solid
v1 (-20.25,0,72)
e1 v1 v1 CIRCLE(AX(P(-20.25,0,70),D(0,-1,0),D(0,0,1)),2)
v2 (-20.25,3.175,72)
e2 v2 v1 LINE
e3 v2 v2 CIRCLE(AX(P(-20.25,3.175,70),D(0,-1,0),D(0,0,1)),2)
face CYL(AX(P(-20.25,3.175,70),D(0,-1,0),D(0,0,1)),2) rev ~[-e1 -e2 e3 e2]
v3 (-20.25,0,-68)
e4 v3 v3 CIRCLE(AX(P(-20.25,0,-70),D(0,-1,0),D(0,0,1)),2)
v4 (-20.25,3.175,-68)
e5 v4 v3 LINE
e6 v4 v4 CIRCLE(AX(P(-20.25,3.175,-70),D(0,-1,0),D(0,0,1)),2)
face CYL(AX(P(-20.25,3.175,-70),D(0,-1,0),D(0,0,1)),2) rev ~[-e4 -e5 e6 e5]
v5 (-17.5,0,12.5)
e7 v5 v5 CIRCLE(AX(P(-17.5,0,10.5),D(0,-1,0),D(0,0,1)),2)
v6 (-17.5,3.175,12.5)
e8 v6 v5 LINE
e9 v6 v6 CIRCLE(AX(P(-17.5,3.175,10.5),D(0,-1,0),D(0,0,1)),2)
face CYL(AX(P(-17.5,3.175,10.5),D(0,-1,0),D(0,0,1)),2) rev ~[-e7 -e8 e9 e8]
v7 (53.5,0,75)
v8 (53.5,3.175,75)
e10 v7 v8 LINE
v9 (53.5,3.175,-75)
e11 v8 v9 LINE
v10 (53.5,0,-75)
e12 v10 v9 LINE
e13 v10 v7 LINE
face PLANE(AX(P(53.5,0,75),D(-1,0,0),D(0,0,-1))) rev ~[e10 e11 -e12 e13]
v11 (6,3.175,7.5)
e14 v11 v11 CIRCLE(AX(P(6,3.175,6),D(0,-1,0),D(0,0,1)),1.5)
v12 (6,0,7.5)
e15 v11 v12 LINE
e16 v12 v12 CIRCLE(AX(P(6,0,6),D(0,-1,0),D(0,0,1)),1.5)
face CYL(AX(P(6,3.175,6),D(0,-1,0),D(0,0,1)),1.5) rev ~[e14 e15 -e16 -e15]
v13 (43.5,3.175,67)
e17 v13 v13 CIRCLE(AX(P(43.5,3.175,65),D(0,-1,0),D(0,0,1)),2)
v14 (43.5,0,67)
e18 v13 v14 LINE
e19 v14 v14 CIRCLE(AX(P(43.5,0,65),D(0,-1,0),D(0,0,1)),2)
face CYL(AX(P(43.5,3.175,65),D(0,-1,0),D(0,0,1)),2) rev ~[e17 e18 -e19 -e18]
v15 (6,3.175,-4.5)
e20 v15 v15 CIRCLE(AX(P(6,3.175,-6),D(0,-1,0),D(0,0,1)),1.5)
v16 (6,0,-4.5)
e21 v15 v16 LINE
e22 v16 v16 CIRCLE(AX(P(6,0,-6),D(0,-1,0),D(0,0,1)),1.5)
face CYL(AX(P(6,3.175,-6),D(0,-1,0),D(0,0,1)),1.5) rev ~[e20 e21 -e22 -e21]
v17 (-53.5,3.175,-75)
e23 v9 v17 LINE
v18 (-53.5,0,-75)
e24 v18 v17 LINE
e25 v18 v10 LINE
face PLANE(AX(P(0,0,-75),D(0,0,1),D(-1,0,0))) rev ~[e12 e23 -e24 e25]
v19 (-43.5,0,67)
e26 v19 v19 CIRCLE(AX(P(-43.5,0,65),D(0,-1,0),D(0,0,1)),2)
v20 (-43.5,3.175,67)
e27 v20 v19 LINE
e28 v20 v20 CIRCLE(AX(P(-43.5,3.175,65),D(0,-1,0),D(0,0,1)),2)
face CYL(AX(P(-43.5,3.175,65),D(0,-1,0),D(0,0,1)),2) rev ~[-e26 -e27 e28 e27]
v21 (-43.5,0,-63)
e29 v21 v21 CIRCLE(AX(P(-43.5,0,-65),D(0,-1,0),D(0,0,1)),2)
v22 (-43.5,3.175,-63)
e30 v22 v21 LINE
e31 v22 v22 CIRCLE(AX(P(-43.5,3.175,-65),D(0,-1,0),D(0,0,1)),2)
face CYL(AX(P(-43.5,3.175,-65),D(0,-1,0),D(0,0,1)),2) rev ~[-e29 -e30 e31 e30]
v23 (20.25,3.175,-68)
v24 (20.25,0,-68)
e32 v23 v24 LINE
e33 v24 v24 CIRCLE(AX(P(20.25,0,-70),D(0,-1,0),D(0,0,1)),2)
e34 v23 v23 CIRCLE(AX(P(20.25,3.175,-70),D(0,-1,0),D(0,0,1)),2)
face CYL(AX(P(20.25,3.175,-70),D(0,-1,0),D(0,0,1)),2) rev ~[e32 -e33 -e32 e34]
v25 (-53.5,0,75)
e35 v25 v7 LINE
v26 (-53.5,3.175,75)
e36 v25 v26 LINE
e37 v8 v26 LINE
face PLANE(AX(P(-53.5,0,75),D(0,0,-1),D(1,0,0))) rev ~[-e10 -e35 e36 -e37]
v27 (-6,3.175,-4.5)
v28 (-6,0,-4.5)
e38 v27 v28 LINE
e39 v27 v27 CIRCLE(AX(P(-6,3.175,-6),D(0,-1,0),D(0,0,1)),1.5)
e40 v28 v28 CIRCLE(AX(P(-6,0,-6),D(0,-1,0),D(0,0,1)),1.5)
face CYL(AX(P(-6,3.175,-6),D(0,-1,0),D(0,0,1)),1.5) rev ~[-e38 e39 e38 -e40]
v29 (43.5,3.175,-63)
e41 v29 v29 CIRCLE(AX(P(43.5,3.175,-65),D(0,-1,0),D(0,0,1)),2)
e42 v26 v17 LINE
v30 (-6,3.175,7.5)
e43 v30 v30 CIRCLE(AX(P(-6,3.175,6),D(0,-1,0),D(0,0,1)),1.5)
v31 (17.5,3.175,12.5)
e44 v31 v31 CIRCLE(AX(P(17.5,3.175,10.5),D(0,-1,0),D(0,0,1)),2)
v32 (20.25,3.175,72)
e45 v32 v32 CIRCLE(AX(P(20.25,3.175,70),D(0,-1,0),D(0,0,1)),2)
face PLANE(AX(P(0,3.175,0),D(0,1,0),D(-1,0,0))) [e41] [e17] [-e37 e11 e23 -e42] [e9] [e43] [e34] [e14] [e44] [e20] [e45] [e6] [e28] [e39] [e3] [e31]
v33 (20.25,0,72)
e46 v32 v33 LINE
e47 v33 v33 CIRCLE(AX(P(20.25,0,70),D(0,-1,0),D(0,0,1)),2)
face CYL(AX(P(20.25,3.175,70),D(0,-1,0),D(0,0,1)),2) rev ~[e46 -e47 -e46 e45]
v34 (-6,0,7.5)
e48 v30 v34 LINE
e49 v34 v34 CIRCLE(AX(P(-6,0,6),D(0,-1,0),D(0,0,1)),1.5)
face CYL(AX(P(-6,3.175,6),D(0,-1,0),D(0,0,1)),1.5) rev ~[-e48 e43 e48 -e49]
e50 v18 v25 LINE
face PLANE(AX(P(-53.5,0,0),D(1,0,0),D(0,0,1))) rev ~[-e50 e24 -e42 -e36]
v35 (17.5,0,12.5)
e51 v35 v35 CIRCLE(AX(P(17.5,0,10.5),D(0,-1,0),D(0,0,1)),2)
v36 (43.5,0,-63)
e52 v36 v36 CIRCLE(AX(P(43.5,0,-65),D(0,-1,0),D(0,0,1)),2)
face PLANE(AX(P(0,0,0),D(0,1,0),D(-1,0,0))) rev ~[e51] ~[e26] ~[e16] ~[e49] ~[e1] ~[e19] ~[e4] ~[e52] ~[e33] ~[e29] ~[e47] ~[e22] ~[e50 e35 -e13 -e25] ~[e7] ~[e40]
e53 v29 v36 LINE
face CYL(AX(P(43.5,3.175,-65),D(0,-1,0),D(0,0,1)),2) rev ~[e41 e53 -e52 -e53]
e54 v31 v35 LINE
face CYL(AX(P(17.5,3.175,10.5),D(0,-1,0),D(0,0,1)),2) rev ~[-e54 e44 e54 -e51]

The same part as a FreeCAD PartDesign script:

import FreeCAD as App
import Part
import Sketcher

V = App.Vector
Q = App.Units.Quantity

doc = App.newDocument("Part")
body = doc.addObject("PartDesign::Body", "Body")

# Sketch on XZ plane
sketch1 = body.newObject("Sketcher::SketchObject", "Sketch")
sketch1.AttachmentSupport = (doc.getObject("XZ_Plane"), [""])
sketch1.MapMode = "FlatFace"
sketch1.addGeometry(Part.LineSegment(V(-54, 75, 0), V(54, 75, 0)), False)
sketch1.addGeometry(Part.LineSegment(V(54, 75, 0), V(54, -75, 0)), False)
sketch1.addGeometry(Part.LineSegment(V(54, -75, 0), V(-54, -75, 0)), False)
sketch1.addGeometry(Part.LineSegment(V(-54, -75, 0), V(-54, 75, 0)), False)
sketch1.addConstraint(Sketcher.Constraint("Coincident", 0, 2, 1, 1))
sketch1.addConstraint(Sketcher.Constraint("Coincident", 1, 2, 2, 1))
sketch1.addConstraint(Sketcher.Constraint("Coincident", 2, 2, 3, 1))
sketch1.addConstraint(Sketcher.Constraint("Coincident", 3, 2, 0, 1))
sketch1.addConstraint(Sketcher.Constraint("Horizontal", 0))
sketch1.addConstraint(Sketcher.Constraint("Vertical", 1))
sketch1.addConstraint(Sketcher.Constraint("Horizontal", 2))
sketch1.addConstraint(Sketcher.Constraint("Vertical", 3))
sketch1.addConstraint(Sketcher.Constraint("Symmetric", 0, 2, 2, 2, -1, 1))
sketch1.addConstraint(Sketcher.Constraint("DistanceX", 0, 1, 0, 2, Q("107 mm")))
sketch1.addConstraint(Sketcher.Constraint("DistanceY", 1, 2, 1, 1, Q("150 mm")))
pad1 = body.newObject("PartDesign::Pad", "Pad")
pad1.Profile = sketch1
pad1.Length = 3.175
pad1.Reversed = True

# Sketch on XZ plane
sketch2 = body.newObject("Sketcher::SketchObject", "Sketch001")
sketch2.AttachmentSupport = (doc.getObject("XZ_Plane"), [""])
sketch2.MapMode = "FlatFace"
sketch2.AttachmentOffset = App.Placement(V(0, 0, -3.175), App.Rotation())
sketch2.addGeometry(Part.Circle(V(-43.5, 65, 0), V(0, 0, 1), 2), False)
sketch2.addGeometry(Part.Circle(V(-20.2, 70, 0), V(0, 0, 1), 2), False)
sketch2.addGeometry(Part.Circle(V(20.2, 70, 0), V(0, 0, 1), 2), False)
sketch2.addGeometry(Part.Circle(V(43.5, 65, 0), V(0, 0, 1), 2), False)
sketch2.addGeometry(Part.Circle(V(43.5, -65, 0), V(0, 0, 1), 2), False)
sketch2.addGeometry(Part.Circle(V(20.2, -70, 0), V(0, 0, 1), 2), False)
sketch2.addGeometry(Part.Circle(V(-20.2, -70, 0), V(0, 0, 1), 2), False)
sketch2.addGeometry(Part.Circle(V(-43.5, -65, 0), V(0, 0, 1), 2), False)
sketch2.addGeometry(Part.Circle(V(-17.5, 10.5, 0), V(0, 0, 1), 2), False)
sketch2.addGeometry(Part.Circle(V(17.5, 10.5, 0), V(0, 0, 1), 2), False)
sketch2.addConstraint(Sketcher.Constraint("Equal", 0, 1))
sketch2.addConstraint(Sketcher.Constraint("Equal", 1, 2))
sketch2.addConstraint(Sketcher.Constraint("Equal", 2, 3))
sketch2.addConstraint(Sketcher.Constraint("Equal", 3, 4))
sketch2.addConstraint(Sketcher.Constraint("Equal", 4, 5))
sketch2.addConstraint(Sketcher.Constraint("Equal", 5, 6))
sketch2.addConstraint(Sketcher.Constraint("Equal", 6, 7))
sketch2.addConstraint(Sketcher.Constraint("Equal", 7, 8))
sketch2.addConstraint(Sketcher.Constraint("Equal", 8, 9))
sketch2.addConstraint(Sketcher.Constraint("Symmetric", 0, 3, 4, 3, -1, 1))
sketch2.addConstraint(Sketcher.Constraint("Symmetric", 1, 3, 5, 3, -1, 1))
sketch2.addConstraint(Sketcher.Constraint("Symmetric", 2, 3, 6, 3, -1, 1))
sketch2.addConstraint(Sketcher.Constraint("Symmetric", 3, 3, 7, 3, -1, 1))
sketch2.addConstraint(Sketcher.Constraint("Symmetric", 1, 3, 2, 3, -2))
sketch2.addConstraint(Sketcher.Constraint("Symmetric", 0, 3, 3, 3, -2))
sketch2.addConstraint(Sketcher.Constraint("Symmetric", 8, 3, 9, 3, -2))
sketch2.addConstraint(Sketcher.Constraint("Diameter", 0, Q("4 mm")))
sketch2.addConstraint(Sketcher.Constraint("DistanceY", -1, 1, 0, 3, Q("65 mm")))
sketch2.addConstraint(Sketcher.Constraint("DistanceY", -1, 1, 1, 3, Q("70 mm")))
sketch2.addConstraint(Sketcher.Constraint("DistanceX", 0, 3, 3, 3, Q("87 mm")))
sketch2.addConstraint(Sketcher.Constraint("DistanceX", 0, 3, 8, 3, Q("26 mm")))
sketch2.addConstraint(Sketcher.Constraint("DistanceY", -1, 1, 8, 3, Q("10.5 mm")))
sketch2.addConstraint(Sketcher.Constraint("DistanceX", 1, 3, 2, 3, Q("40.5 mm")))
doc.recompute()
hole = body.newObject("PartDesign::Hole", "Hole")
hole.Profile = sketch2
hole.ThreadType = "None"
hole.Diameter = 4
hole.DepthType = "ThroughAll"
hole.Reversed = True

# Sketch on XZ plane
sketch3 = body.newObject("Sketcher::SketchObject", "Sketch002")
sketch3.AttachmentSupport = (doc.getObject("XZ_Plane"), [""])
sketch3.MapMode = "FlatFace"
sketch3.AttachmentOffset = App.Placement(V(0, 0, -3.175), App.Rotation())
sketch3.addGeometry(Part.Circle(V(-6, 6, 0), V(0, 0, 1), 1.5), False)
sketch3.addGeometry(Part.Circle(V(-6, -6, 0), V(0, 0, 1), 1.5), False)
sketch3.addGeometry(Part.Circle(V(6, 6, 0), V(0, 0, 1), 1.5), False)
sketch3.addGeometry(Part.Circle(V(6, -6, 0), V(0, 0, 1), 1.5), False)
sketch3.addConstraint(Sketcher.Constraint("Equal", 0, 1))
sketch3.addConstraint(Sketcher.Constraint("Equal", 1, 2))
sketch3.addConstraint(Sketcher.Constraint("Equal", 2, 3))
sketch3.addConstraint(Sketcher.Constraint("Symmetric", 1, 3, 2, 3, -1, 1))
sketch3.addConstraint(Sketcher.Constraint("Symmetric", 0, 3, 3, 3, -1, 1))
sketch3.addConstraint(Sketcher.Constraint("Symmetric", 0, 3, 2, 3, -2))
sketch3.addConstraint(Sketcher.Constraint("Diameter", 0, Q("3 mm")))
sketch3.addConstraint(Sketcher.Constraint("DistanceX", 0, 3, -1, 1, Q("6 mm")))
sketch3.addConstraint(Sketcher.Constraint("DistanceY", -1, 1, 0, 3, Q("6 mm")))
doc.recompute()
hole2 = body.newObject("PartDesign::Hole", "Hole001")
hole2.Profile = sketch3
hole2.ThreadType = "None"
hole2.Diameter = 3
hole2.DepthType = "ThroughAll"
hole2.Reversed = True

doc.recompute()
